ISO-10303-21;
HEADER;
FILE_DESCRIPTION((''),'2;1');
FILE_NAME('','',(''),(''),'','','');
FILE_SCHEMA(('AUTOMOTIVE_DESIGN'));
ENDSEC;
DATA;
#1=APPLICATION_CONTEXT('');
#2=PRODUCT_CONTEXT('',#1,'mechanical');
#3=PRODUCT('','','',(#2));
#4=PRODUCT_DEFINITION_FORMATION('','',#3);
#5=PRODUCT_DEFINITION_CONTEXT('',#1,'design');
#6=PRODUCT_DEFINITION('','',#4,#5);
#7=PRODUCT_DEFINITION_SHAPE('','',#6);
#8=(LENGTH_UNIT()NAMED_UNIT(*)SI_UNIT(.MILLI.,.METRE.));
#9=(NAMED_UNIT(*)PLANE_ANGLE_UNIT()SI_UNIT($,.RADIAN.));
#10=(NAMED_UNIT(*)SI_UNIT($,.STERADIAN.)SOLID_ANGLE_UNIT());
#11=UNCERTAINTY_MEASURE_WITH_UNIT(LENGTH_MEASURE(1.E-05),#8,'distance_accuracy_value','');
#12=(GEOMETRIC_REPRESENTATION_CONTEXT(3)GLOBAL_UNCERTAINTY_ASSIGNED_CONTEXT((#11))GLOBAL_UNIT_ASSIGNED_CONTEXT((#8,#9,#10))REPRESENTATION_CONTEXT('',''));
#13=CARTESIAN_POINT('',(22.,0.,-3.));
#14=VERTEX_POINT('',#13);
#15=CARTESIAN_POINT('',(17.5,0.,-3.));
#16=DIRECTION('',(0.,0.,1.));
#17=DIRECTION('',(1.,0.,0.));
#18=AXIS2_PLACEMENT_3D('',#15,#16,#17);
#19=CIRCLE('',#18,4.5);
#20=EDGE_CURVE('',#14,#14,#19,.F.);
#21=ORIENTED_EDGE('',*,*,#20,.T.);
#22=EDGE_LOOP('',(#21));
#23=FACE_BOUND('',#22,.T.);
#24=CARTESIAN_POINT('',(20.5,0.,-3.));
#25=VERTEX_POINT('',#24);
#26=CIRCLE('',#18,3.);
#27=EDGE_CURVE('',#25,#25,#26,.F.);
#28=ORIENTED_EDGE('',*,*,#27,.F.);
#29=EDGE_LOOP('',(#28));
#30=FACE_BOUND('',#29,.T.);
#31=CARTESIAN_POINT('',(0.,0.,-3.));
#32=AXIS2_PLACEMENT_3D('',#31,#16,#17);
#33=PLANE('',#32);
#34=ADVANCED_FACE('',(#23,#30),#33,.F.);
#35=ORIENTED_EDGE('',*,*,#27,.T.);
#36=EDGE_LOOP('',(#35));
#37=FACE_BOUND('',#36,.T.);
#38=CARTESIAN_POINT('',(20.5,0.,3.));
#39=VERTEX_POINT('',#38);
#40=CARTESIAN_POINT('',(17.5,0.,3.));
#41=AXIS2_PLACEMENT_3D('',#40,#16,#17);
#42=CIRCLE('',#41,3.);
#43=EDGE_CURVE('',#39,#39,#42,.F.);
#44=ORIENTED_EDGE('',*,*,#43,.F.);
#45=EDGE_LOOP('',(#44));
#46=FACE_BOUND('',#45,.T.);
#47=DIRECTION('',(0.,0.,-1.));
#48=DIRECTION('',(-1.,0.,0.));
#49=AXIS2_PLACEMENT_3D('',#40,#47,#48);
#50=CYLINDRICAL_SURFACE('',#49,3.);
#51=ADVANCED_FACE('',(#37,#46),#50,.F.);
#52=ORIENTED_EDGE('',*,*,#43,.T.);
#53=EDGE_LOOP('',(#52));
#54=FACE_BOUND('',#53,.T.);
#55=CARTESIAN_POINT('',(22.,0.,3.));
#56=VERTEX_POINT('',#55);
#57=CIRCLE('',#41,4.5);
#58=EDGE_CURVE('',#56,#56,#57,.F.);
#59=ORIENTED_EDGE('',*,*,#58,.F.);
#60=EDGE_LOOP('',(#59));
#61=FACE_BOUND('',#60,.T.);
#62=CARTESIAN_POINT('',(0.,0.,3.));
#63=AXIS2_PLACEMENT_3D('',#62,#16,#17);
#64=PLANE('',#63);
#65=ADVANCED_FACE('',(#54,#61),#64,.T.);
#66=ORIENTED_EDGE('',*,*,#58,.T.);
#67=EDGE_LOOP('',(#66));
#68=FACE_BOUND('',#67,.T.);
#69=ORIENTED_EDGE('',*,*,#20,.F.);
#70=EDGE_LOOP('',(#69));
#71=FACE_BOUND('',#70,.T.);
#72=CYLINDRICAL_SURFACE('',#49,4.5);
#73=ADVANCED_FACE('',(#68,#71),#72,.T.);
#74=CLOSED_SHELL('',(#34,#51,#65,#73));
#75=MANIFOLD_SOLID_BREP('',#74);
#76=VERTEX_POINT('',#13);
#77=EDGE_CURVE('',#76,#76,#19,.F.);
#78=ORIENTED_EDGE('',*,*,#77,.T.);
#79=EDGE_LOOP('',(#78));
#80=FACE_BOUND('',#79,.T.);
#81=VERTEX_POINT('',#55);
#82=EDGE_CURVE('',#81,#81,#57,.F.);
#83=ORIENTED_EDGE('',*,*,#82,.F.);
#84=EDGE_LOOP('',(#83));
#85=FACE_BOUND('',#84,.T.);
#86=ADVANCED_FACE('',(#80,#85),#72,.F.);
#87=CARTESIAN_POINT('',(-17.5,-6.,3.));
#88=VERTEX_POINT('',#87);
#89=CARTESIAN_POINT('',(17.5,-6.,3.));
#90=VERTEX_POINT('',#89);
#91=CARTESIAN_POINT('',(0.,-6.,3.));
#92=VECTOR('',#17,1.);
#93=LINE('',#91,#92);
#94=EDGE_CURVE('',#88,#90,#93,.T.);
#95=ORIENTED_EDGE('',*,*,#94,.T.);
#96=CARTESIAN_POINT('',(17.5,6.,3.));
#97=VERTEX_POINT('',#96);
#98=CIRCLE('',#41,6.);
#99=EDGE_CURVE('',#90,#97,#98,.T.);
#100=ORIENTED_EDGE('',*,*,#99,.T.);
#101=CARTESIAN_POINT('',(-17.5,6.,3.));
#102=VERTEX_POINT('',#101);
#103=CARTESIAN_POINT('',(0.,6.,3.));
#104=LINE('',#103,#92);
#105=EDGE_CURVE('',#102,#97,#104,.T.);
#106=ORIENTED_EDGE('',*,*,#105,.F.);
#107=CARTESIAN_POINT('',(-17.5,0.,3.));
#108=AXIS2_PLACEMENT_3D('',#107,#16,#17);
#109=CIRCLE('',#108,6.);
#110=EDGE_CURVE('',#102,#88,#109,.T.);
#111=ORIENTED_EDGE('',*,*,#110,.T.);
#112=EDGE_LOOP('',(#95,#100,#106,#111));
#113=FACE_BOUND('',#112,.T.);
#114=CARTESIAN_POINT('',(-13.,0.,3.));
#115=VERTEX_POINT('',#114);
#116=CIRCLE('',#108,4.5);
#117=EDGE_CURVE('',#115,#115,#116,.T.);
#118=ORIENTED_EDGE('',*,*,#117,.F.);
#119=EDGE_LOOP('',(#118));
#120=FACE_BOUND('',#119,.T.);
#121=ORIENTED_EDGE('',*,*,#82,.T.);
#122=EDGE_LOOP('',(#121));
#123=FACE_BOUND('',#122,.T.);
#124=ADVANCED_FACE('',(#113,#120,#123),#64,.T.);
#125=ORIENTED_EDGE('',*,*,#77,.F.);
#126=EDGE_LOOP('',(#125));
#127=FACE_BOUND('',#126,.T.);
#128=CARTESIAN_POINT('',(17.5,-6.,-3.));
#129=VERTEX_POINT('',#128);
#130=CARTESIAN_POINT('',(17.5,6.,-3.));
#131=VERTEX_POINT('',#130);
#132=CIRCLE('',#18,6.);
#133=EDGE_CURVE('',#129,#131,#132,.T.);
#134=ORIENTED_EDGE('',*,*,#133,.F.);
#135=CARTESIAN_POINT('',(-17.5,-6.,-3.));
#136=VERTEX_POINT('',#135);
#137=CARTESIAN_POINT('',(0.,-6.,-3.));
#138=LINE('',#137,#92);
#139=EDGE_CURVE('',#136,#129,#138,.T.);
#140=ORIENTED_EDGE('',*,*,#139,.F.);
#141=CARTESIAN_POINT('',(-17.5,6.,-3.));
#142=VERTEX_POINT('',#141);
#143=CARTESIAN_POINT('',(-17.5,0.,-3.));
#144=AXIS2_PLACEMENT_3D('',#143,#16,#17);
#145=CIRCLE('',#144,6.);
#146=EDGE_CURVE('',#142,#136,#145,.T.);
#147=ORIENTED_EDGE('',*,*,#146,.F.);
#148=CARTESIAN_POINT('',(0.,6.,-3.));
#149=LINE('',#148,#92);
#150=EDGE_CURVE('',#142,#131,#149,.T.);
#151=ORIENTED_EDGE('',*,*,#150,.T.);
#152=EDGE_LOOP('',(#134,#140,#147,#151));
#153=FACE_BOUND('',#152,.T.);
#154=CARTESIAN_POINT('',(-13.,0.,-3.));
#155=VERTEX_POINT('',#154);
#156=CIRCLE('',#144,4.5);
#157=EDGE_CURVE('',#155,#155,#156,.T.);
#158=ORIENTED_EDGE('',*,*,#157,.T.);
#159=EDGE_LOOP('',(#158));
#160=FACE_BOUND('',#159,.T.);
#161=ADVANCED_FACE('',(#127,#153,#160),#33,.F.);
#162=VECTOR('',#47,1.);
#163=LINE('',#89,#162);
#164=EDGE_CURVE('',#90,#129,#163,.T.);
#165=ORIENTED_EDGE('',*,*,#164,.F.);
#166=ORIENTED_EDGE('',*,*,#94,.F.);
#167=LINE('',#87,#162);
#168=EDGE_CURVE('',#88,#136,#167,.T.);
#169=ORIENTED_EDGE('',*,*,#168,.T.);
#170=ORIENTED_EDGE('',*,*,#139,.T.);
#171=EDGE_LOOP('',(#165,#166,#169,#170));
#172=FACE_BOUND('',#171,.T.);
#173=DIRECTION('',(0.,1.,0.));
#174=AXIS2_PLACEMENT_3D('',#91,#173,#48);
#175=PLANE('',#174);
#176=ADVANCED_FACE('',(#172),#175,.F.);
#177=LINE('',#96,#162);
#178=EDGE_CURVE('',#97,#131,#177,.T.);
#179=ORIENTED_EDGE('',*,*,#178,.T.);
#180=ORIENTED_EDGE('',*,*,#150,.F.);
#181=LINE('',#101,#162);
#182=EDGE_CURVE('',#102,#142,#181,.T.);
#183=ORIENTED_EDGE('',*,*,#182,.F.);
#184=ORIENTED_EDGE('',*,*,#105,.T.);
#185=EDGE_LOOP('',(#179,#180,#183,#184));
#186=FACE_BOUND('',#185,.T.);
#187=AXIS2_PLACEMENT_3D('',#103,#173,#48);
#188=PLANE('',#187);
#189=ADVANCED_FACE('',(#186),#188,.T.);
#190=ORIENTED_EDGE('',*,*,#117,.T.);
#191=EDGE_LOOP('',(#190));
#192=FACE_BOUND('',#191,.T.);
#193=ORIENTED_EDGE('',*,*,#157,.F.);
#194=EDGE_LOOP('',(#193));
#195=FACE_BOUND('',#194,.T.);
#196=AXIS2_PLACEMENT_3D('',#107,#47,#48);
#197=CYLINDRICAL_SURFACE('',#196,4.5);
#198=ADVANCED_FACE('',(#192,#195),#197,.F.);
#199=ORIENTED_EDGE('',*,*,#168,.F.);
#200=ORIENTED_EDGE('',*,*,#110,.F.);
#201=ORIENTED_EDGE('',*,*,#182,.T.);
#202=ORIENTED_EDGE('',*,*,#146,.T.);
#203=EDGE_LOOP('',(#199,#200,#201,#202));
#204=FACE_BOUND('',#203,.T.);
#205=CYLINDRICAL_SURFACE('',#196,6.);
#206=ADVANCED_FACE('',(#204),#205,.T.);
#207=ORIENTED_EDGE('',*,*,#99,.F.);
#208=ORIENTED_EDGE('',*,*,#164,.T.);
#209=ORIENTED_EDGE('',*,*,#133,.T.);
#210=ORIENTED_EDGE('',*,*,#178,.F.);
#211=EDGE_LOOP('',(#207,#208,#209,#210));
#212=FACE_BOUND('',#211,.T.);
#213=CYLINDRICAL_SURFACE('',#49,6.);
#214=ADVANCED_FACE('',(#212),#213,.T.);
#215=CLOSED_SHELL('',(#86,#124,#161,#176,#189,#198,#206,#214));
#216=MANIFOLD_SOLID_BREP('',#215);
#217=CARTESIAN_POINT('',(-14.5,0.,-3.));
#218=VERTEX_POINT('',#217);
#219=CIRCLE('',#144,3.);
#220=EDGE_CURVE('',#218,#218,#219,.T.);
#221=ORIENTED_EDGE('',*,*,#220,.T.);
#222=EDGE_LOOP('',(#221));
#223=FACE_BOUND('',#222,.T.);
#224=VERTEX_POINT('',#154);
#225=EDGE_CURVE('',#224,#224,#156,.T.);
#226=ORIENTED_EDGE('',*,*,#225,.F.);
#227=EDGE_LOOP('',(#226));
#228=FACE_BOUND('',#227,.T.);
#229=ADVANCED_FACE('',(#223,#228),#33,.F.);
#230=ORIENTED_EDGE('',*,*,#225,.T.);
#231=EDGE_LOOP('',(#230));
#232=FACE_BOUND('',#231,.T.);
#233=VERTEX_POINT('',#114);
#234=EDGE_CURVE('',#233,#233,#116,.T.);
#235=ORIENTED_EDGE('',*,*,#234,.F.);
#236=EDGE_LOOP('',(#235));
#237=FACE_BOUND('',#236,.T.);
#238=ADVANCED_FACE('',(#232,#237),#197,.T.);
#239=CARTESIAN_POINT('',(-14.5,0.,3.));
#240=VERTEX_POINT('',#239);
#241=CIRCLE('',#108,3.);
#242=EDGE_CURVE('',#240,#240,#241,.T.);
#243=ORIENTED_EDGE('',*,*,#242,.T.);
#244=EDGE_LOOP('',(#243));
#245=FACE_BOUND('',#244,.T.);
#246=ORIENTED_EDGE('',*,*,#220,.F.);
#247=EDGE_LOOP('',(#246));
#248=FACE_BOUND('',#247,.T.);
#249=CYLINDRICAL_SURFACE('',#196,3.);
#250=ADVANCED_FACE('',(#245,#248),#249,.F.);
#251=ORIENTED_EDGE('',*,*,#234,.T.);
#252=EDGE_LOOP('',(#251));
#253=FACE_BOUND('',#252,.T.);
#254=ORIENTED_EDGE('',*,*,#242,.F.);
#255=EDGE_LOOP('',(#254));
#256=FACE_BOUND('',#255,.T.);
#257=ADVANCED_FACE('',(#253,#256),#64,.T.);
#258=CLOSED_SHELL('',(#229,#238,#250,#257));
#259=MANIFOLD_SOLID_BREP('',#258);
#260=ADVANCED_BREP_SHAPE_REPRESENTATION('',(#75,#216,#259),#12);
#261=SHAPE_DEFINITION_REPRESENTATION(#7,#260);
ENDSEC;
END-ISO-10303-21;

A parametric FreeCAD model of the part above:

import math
import FreeCAD as App
import Part
import Sketcher

V = App.Vector

doc = App.newDocument("Part")
params = doc.addObject("Spreadsheet::Sheet", "Params")
for row, (alias, value) in enumerate([
    ("sketch1_diameter", "9 mm"),
    ("sketch1_radius", "6 mm"),
    ("sketch1_width", "35 mm"),
    ("pad1_length", "6 mm"),
    ("sketch2_diameter", "9 mm"),
    ("sketch2_diameter2", "6 mm"),
    ("pad2_length", "6 mm"),
    ("sketch3_diameter", "9 mm"),
    ("sketch3_diameter2", "6 mm"),
    ("pad3_length", "6 mm"),
], start=1):
    params.set(f"A{row}", alias)
    params.set(f"B{row}", "=" + value)
    params.setAlias(f"B{row}", alias)

body = doc.addObject("PartDesign::Body", "Body")

# Sketch on XY plane
sketch1 = doc.addObject("Sketcher::SketchObject", "Sketch")
body.addObject(sketch1)
sketch1.AttachmentSupport = (doc.XY_Plane, [""])
sketch1.MapMode = "FlatFace"
sketch1.addGeometry([
    Part.LineSegment(V(-17.5, -6, 0), V(17.5, -6, 0)),  # 0
    Part.ArcOfCircle(Part.Circle(V(17.5, 0, 0), V(0, 0, 1), 6), math.radians(-90), math.radians(90)),  # 1
    Part.LineSegment(V(17.5, 6, 0), V(-17.5, 6, 0)),  # 2
    Part.ArcOfCircle(Part.Circle(V(-17.5, 0, 0), V(0, 0, 1), 6), math.radians(90), math.radians(270)),  # 3
    Part.Circle(V(-17.5, 0, 0), V(0, 0, 1), 4.5),  # 4
    Part.Circle(V(17.5, 0, 0), V(0, 0, 1), 4.5),  # 5
], False)
sketch1.addConstraint([
    Sketcher.Constraint("Tangent", 0, 2, 1, 1),
    Sketcher.Constraint("Tangent", 1, 2, 2, 1),
    Sketcher.Constraint("Tangent", 2, 2, 3, 1),
    Sketcher.Constraint("Tangent", 3, 2, 0, 1),
    Sketcher.Constraint("Horizontal", 0),
    Sketcher.Constraint("Horizontal", 2),
    Sketcher.Constraint("Coincident", 4, 3, 3, 3),
    Sketcher.Constraint("Coincident", 5, 3, 1, 3),
    Sketcher.Constraint("Equal", 4, 5),
    Sketcher.Constraint("Symmetric", 1, 3, 3, 3, -1, 1),
    Sketcher.Constraint("Diameter", 4, 9.0),
    Sketcher.Constraint("Radius", 1, 6.0),
    Sketcher.Constraint("DistanceX", 0, 1, 0, 2, 35.0),
])
sketch1.setExpression("Constraints[10]", "Params.sketch1_diameter")
sketch1.setExpression("Constraints[11]", "Params.sketch1_radius")
sketch1.setExpression("Constraints[12]", "Params.sketch1_width")
pad1 = doc.addObject("PartDesign::Pad", "Pad")
body.addObject(pad1)
pad1.Profile = sketch1
pad1.setExpression("Length", "Params.pad1_length")
pad1.Midplane = True
body2 = doc.addObject("PartDesign::Body", "Body001")

# Sketch on XY plane
sketch2 = doc.addObject("Sketcher::SketchObject", "Sketch001")
body2.addObject(sketch2)
sketch2.AttachmentSupport = (doc.getObject("XY_Plane001"), [""])
sketch2.MapMode = "FlatFace"
sketch2.addGeometry([
    Part.Circle(V(-17.5, 0, 0), V(0, 0, 1), 4.5),
    Part.Circle(V(-17.5, 0, 0), V(0, 0, 1), 3),
], False)
sketch2.addConstraint([
    Sketcher.Constraint("Coincident", 1, 3, 0, 3),
    Sketcher.Constraint("PointOnObject", 0, 3, -1),
    Sketcher.Constraint("Diameter", 0, 9.0),
    Sketcher.Constraint("Diameter", 1, 6.0),
    Sketcher.Constraint("DistanceX", 0, 3, -1, 1, 17.5),
])
sketch2.setExpression("Constraints[2]", "Params.sketch2_diameter")
sketch2.setExpression("Constraints[3]", "Params.sketch2_diameter2")
pad2 = doc.addObject("PartDesign::Pad", "Pad001")
body2.addObject(pad2)
pad2.Profile = sketch2
pad2.setExpression("Length", "Params.pad2_length")
pad2.Midplane = True
body3 = doc.addObject("PartDesign::Body", "Body002")

# Sketch on XY plane
sketch3 = doc.addObject("Sketcher::SketchObject", "Sketch002")
body3.addObject(sketch3)
sketch3.AttachmentSupport = (doc.getObject("XY_Plane002"), [""])
sketch3.MapMode = "FlatFace"
sketch3.addGeometry([
    Part.Circle(V(17.5, 0, 0), V(0, 0, 1), 4.5),
    Part.Circle(V(17.5, 0, 0), V(0, 0, 1), 3),
], False)
sketch3.addConstraint([
    Sketcher.Constraint("Coincident", 1, 3, 0, 3),
    Sketcher.Constraint("PointOnObject", 0, 3, -1),
    Sketcher.Constraint("Diameter", 0, 9.0),
    Sketcher.Constraint("Diameter", 1, 6.0),
    Sketcher.Constraint("DistanceX", -1, 1, 0, 3, 17.5),
])
sketch3.setExpression("Constraints[2]", "Params.sketch3_diameter")
sketch3.setExpression("Constraints[3]", "Params.sketch3_diameter2")
pad3 = doc.addObject("PartDesign::Pad", "Pad002")
body3.addObject(pad3)
pad3.Profile = sketch3
pad3.setExpression("Length", "Params.pad3_length")
pad3.Midplane = True

doc.recompute()
